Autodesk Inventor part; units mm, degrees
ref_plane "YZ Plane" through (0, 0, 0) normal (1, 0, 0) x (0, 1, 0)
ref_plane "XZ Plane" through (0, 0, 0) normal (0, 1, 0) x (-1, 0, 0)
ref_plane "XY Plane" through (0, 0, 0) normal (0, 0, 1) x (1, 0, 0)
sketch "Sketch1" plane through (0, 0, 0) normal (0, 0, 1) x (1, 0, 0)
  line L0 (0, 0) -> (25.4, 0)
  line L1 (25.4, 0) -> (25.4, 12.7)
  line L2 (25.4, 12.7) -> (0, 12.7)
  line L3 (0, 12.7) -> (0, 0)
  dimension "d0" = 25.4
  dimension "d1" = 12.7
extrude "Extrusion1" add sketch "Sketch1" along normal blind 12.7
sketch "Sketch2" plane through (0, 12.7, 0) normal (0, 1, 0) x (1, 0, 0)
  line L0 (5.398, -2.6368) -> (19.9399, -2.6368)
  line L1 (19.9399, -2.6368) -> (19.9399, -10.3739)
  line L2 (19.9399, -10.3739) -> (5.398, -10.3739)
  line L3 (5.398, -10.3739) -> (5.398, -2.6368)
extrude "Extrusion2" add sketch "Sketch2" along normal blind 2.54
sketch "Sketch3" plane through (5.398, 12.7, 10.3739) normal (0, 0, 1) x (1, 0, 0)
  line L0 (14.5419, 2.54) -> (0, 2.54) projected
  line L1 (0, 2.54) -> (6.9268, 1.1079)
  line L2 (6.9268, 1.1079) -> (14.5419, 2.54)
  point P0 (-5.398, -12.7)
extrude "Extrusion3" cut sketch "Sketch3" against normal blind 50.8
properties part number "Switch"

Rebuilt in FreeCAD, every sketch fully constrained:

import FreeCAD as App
import Part
import Sketcher

V = App.Vector
Q = App.Units.Quantity

doc = App.newDocument("Part")
body = doc.addObject("PartDesign::Body", "Body")

sketch1 = body.newObject("Sketcher::SketchObject", "Sketch")
sketch1.AttachmentSupport = (doc.getObject("XY_Plane"), [""])
sketch1.MapMode = "FlatFace"
sketch1.addGeometry([
    Part.LineSegment(V(0, 12.7, 0), V(0, 0, 0)),
    Part.LineSegment(V(0, 0, 0), V(25.4, 0, 0)),
    Part.LineSegment(V(25.4, 0, 0), V(25.4, 12.7, 0)),
    Part.LineSegment(V(25.4, 12.7, 0), V(0, 12.7, 0)),
], False)
sketch1.addConstraint([
    Sketcher.Constraint("Coincident", 0, 2, 1, 1),
    Sketcher.Constraint("Coincident", 1, 2, 2, 1),
    Sketcher.Constraint("Coincident", 2, 2, 3, 1),
    Sketcher.Constraint("Coincident", 3, 2, 0, 1),
    Sketcher.Constraint("Vertical", 0),
    Sketcher.Constraint("Horizontal", 1),
    Sketcher.Constraint("Vertical", 2),
    Sketcher.Constraint("Horizontal", 3),
    Sketcher.Constraint("Coincident", 0, 2, -1, 1),
    Sketcher.Constraint("DistanceX", 1, 1, 1, 2, Q("1 in")),
    Sketcher.Constraint("DistanceY", 0, 2, 0, 1, Q("0.5 in")),
])
pad1 = body.newObject("PartDesign::Pad", "Pad")
pad1.Profile = sketch1
pad1.Length = Q("0.5 in")

sketch2 = body.newObject("Sketcher::SketchObject", "Sketch001")
sketch2.AttachmentSupport = (doc.getObject("XZ_Plane"), [""])
sketch2.MapMode = "FlatFace"
sketch2.AttachmentOffset = App.Placement(V(0, 0, -0.5 * 25.4), App.Rotation())
sketch2.addGeometry([
    Part.LineSegment(V(19.9399, 2.6368, 0), V(5.398, 2.6368, 0)),
    Part.LineSegment(V(5.398, 2.6368, 0), V(5.398, 10.3739, 0)),
    Part.LineSegment(V(5.398, 10.3739, 0), V(19.9399, 10.3739, 0)),
    Part.LineSegment(V(19.9399, 10.3739, 0), V(19.9399, 2.6368, 0)),
], False)
sketch2.addConstraint([
    Sketcher.Constraint("Coincident", 0, 2, 1, 1),
    Sketcher.Constraint("Coincident", 1, 2, 2, 1),
    Sketcher.Constraint("Coincident", 2, 2, 3, 1),
    Sketcher.Constraint("Coincident", 3, 2, 0, 1),
    Sketcher.Constraint("Horizontal", 0),
    Sketcher.Constraint("Vertical", 1),
    Sketcher.Constraint("Horizontal", 2),
    Sketcher.Constraint("Vertical", 3),
    Sketcher.Constraint("DistanceY", 1, 1, 1, 2, Q("0.3046 in")),
    Sketcher.Constraint("DistanceX", 0, 2, 0, 1, Q("14.542 mm")),
    Sketcher.Constraint("DistanceY", -1, 1, 0, 2, Q("0.1038 in")),
    Sketcher.Constraint("DistanceX", -1, 1, 0, 2, Q("5.398 mm")),
])
pad2 = body.newObject("PartDesign::Pad", "Pad001")
pad2.Profile = sketch2
pad2.Length = Q("0.1 in")
pad2.Reversed = True

sketch3 = body.newObject("Sketcher::SketchObject", "Sketch002")
sketch3.AttachmentSupport = (doc.getObject("XY_Plane"), [""])
sketch3.MapMode = "FlatFace"
sketch3.AttachmentOffset = App.Placement(V(0, 0, 10.3739), App.Rotation())
sketch3.addGeometry([
    Part.LineSegment(V(12.3248, 13.8079, 0), V(19.9399, 15.24, 0)),
    Part.LineSegment(V(19.9399, 15.24, 0), V(5.398, 15.24, 0)),
    Part.LineSegment(V(5.398, 15.24, 0), V(12.3248, 13.8079, 0)),
], False)
sketch3.addConstraint([
    Sketcher.Constraint("Coincident", 0, 2, 1, 1),
    Sketcher.Constraint("Coincident", 1, 2, 2, 1),
    Sketcher.Constraint("Coincident", 2, 2, 0, 1),
    Sketcher.Constraint("Horizontal", 1),
    Sketcher.Constraint("DistanceY", -1, 1, 0, 2, Q("0.6 in")),
    Sketcher.Constraint("Angle", 0, Q("10.6507 deg")),
    Sketcher.Constraint("Angle", 2, Q("-11.6812 deg")),
    Sketcher.Constraint("DistanceX", 1, 2, 1, 1, Q("14.542 mm")),
    Sketcher.Constraint("DistanceX", -1, 1, 0, 2, Q("19.94 mm")),
])
pocket1 = body.newObject("PartDesign::Pocket", "Pocket")
pocket1.Profile = sketch3
pocket1.Length = Q("2 in")

doc.recompute()
